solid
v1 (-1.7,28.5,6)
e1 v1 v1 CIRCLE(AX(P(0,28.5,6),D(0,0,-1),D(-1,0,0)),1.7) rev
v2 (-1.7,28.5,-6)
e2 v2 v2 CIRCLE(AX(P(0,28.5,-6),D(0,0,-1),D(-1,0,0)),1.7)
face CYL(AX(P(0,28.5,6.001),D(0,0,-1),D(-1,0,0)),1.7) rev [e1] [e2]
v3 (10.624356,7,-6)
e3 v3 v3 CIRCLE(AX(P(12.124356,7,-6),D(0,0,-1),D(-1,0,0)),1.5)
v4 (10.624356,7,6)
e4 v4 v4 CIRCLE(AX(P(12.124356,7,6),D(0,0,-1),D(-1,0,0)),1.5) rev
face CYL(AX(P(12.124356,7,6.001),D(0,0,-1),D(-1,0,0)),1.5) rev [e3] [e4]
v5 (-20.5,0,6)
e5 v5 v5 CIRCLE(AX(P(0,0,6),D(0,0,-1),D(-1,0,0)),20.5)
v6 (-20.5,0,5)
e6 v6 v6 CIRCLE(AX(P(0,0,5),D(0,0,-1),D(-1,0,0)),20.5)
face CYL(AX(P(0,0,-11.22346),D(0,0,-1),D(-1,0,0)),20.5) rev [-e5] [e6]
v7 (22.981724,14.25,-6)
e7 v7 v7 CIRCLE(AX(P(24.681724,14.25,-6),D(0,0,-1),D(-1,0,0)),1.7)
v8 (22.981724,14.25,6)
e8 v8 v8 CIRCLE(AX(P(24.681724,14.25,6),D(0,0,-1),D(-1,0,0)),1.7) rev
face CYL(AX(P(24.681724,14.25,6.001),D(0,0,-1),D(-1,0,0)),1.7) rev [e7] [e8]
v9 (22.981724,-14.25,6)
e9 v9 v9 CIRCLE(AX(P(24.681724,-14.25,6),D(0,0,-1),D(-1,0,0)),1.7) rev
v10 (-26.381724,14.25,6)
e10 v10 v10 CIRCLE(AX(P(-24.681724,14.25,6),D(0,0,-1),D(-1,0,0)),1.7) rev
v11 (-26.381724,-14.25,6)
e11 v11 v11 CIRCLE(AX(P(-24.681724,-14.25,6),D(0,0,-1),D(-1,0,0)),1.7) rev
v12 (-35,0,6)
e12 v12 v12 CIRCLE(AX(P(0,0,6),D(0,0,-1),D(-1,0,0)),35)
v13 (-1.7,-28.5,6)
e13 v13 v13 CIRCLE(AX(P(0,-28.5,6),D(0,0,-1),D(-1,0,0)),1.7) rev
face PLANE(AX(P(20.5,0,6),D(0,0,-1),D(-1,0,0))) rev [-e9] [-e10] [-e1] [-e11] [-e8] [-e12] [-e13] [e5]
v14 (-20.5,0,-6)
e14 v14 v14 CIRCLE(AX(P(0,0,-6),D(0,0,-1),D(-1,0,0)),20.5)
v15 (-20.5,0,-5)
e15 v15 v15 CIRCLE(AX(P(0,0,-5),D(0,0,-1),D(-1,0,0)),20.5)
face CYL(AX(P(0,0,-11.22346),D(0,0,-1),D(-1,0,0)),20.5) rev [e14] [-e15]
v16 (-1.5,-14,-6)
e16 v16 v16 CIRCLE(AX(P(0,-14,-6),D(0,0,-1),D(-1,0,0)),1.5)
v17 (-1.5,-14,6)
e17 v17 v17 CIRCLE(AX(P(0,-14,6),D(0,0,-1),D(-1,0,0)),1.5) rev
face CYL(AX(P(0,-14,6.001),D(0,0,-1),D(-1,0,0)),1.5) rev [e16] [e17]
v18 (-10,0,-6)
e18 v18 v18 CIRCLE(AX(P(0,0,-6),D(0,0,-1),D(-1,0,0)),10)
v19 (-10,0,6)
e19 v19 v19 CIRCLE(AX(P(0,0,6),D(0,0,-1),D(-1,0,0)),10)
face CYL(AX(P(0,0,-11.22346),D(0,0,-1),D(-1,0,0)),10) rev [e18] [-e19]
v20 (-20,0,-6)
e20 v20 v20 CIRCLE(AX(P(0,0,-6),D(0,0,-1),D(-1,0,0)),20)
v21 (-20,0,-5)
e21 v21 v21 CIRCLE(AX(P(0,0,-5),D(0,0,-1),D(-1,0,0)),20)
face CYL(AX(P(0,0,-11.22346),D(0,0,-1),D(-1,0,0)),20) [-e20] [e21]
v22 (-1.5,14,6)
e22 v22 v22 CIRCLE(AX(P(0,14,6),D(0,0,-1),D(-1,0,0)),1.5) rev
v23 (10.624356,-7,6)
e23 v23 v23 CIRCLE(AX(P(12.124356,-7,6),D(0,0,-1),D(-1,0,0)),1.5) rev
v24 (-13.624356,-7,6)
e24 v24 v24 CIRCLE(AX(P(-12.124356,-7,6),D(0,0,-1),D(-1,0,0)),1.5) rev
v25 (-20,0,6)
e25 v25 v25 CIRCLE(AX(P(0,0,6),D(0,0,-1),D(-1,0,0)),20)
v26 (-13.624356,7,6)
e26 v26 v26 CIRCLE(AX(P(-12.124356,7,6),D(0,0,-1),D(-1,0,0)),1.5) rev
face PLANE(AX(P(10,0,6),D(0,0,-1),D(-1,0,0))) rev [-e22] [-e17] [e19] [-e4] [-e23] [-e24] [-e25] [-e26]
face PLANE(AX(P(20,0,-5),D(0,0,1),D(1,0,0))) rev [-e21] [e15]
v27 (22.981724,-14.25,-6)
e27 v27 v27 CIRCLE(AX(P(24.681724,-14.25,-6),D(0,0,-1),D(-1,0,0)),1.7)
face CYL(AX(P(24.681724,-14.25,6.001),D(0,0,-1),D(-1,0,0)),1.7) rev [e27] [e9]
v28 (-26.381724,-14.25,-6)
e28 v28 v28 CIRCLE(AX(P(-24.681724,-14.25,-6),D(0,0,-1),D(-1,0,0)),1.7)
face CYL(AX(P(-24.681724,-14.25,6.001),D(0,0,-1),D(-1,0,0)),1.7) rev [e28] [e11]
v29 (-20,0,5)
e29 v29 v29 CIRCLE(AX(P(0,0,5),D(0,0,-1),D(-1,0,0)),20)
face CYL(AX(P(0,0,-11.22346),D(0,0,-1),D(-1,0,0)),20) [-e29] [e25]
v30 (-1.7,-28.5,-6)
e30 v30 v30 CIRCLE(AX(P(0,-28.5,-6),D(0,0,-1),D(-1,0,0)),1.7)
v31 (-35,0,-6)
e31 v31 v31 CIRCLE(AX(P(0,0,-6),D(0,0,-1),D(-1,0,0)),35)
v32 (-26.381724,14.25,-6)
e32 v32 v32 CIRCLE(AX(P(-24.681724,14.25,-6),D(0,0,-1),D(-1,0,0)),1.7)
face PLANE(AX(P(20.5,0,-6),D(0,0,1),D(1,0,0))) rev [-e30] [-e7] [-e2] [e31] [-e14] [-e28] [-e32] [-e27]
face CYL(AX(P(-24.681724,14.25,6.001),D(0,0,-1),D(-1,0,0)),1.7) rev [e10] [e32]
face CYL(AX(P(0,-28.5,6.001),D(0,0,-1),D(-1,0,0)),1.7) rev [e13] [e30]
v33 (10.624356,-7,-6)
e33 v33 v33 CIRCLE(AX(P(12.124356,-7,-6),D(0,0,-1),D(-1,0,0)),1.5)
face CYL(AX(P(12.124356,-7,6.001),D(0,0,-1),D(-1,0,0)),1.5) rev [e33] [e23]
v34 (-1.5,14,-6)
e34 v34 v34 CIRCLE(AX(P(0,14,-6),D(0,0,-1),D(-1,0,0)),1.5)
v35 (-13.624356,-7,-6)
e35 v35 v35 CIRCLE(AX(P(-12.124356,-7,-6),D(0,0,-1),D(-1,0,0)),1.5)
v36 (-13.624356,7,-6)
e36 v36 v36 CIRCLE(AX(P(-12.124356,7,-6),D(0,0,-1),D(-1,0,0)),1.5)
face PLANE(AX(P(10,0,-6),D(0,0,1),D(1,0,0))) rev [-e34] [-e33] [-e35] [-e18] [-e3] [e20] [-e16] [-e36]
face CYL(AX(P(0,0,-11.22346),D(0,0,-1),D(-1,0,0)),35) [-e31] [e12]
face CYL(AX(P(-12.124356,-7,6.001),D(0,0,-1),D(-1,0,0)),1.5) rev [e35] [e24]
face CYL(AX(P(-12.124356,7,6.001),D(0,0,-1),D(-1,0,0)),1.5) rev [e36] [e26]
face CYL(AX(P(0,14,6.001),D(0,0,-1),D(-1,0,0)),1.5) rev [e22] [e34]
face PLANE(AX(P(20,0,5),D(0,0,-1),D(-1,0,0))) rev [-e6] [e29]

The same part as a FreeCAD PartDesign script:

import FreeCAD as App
import Part
import Sketcher

V = App.Vector


def add_polygon(sketch, points):
    """Adds a closed chain of lines whose ends are joined by coincident constraints."""
    first, n = sketch.GeometryCount, len(points)
    for a, b in zip(points, points[1:] + points[:1]):
        sketch.addGeometry(Part.LineSegment(App.Vector(*a, 0), App.Vector(*b, 0)), False)
    for i in range(n):
        sketch.addConstraint(Sketcher.Constraint("Coincident", first + i, 2, first + (i + 1) % n, 1))

doc = App.newDocument("Part")
body = doc.addObject("PartDesign::Body", "Body")

# Sketch on XZ plane
sketch1 = doc.addObject("Sketcher::SketchObject", "Sketch")
body.addObject(sketch1)
sketch1.AttachmentSupport = (doc.XZ_Plane, [""])
sketch1.MapMode = "FlatFace"
add_polygon(sketch1, [(20, -6), (10, -6), (10, 6), (20, 6), (20, 5), (20.5, 5), (20.5, 6), (35, 6), (35, -6), (20.5, -6), (20.5, -5), (20, -5)])  # lines 0-11
sketch1.addConstraint([
    Sketcher.Constraint("Horizontal", 0),
    Sketcher.Constraint("Vertical", 1),
    Sketcher.Constraint("Horizontal", 2),
    Sketcher.Constraint("Vertical", 3),
    Sketcher.Constraint("Horizontal", 4),
    Sketcher.Constraint("Vertical", 5),
    Sketcher.Constraint("Horizontal", 6),
    Sketcher.Constraint("Vertical", 7),
    Sketcher.Constraint("Horizontal", 8),
    Sketcher.Constraint("Vertical", 9),
    Sketcher.Constraint("Horizontal", 10),
    Sketcher.Constraint("Vertical", 11),
    Sketcher.Constraint("Symmetric", 5, 2, 8, 2, -1),
    Sketcher.Constraint("Symmetric", 3, 2, 10, 2, -1),
    Sketcher.Constraint("Horizontal", 2, 2, 5, 2),
    Sketcher.Constraint("Horizontal", 0, 2, 7, 2),
    Sketcher.Constraint("DistanceX", 0, 2, 0, 1, 10.0),
    Sketcher.Constraint("DistanceY", 1, 1, 1, 2, 12.0),
    Sketcher.Constraint("DistanceY", 3, 2, 3, 1, 1.0),
    Sketcher.Constraint("DistanceX", 4, 1, 4, 2, 0.5),
    Sketcher.Constraint("DistanceX", 6, 1, 6, 2, 14.5),
    Sketcher.Constraint("DistanceX", -1, 1, 0, 2, 10.0),
])
revolution = doc.addObject("PartDesign::Revolution", "Revolution")
body.addObject(revolution)
revolution.Profile = sketch1
revolution.ReferenceAxis = (sketch1, ["V_Axis"])
revolution.Angle = 360

# Sketch on XY plane
sketch2 = doc.addObject("Sketcher::SketchObject", "Sketch001")
body.addObject(sketch2)
sketch2.AttachmentSupport = (doc.XY_Plane, [""])
sketch2.MapMode = "FlatFace"
sketch2.AttachmentOffset = App.Placement(V(0, 0, -6), App.Rotation())
sketch2.addGeometry(Part.Circle(V(0, 28.5, 0), V(0, 0, 1), 1.7), False)
sketch2.addConstraint([
    Sketcher.Constraint("PointOnObject", 0, 3, -2),
    Sketcher.Constraint("Diameter", 0, 3.4),
    Sketcher.Constraint("DistanceY", -1, 1, 0, 3, 28.5),
])
pocket1 = doc.addObject("PartDesign::Pocket", "Pocket")
body.addObject(pocket1)
pocket1.Profile = sketch2
pocket1.Type = "UpToFirst"
pocket1.Reversed = True

# Sketch on XY plane
sketch3 = doc.addObject("Sketcher::SketchObject", "Sketch002")
body.addObject(sketch3)
sketch3.AttachmentSupport = (doc.XY_Plane, [""])
sketch3.MapMode = "FlatFace"
sketch3.AttachmentOffset = App.Placement(V(0, 0, -6), App.Rotation())
sketch3.addGeometry(Part.Circle(V(-24.7, 14.2, 0), V(0, 0, 1), 1.7), False)
sketch3.addConstraint([
    Sketcher.Constraint("Diameter", 0, 3.4),
    Sketcher.Constraint("DistanceY", -1, 1, 0, 3, 14.25),
    Sketcher.Constraint("DistanceX", 0, 3, -1, 1, 24.681724),
])
pocket2 = doc.addObject("PartDesign::Pocket", "Pocket001")
body.addObject(pocket2)
pocket2.Profile = sketch3
pocket2.Type = "UpToFirst"
pocket2.Reversed = True

# Sketch on XY plane
sketch4 = doc.addObject("Sketcher::SketchObject", "Sketch003")
body.addObject(sketch4)
sketch4.AttachmentSupport = (doc.XY_Plane, [""])
sketch4.MapMode = "FlatFace"
sketch4.AttachmentOffset = App.Placement(V(0, 0, -6), App.Rotation())
sketch4.addGeometry(Part.Circle(V(-24.7, -14.2, 0), V(0, 0, 1), 1.7), False)
sketch4.addConstraint([
    Sketcher.Constraint("Diameter", 0, 3.4),
    Sketcher.Constraint("DistanceY", 0, 3, -1, 1, 14.25),
    Sketcher.Constraint("DistanceX", 0, 3, -1, 1, 24.681724),
])
pocket3 = doc.addObject("PartDesign::Pocket", "Pocket002")
body.addObject(pocket3)
pocket3.Profile = sketch4
pocket3.Type = "UpToFirst"
pocket3.Reversed = True

# Sketch on XY plane
sketch5 = doc.addObject("Sketcher::SketchObject", "Sketch004")
body.addObject(sketch5)
sketch5.AttachmentSupport = (doc.XY_Plane, [""])
sketch5.MapMode = "FlatFace"
sketch5.AttachmentOffset = App.Placement(V(0, 0, -6), App.Rotation())
sketch5.addGeometry(Part.Circle(V(0, -28.5, 0), V(0, 0, 1), 1.7), False)
sketch5.addConstraint([
    Sketcher.Constraint("PointOnObject", 0, 3, -2),
    Sketcher.Constraint("Diameter", 0, 3.4),
    Sketcher.Constraint("DistanceY", 0, 3, -1, 1, 28.5),
])
pocket4 = doc.addObject("PartDesign::Pocket", "Pocket003")
body.addObject(pocket4)
pocket4.Profile = sketch5
pocket4.Type = "UpToFirst"
pocket4.Reversed = True

# Sketch on XY plane
sketch6 = doc.addObject("Sketcher::SketchObject", "Sketch005")
body.addObject(sketch6)
sketch6.AttachmentSupport = (doc.XY_Plane, [""])
sketch6.MapMode = "FlatFace"
sketch6.AttachmentOffset = App.Placement(V(0, 0, -6), App.Rotation())
sketch6.addGeometry(Part.Circle(V(24.7, -14.2, 0), V(0, 0, 1), 1.7), False)
sketch6.addConstraint([
    Sketcher.Constraint("Diameter", 0, 3.4),
    Sketcher.Constraint("DistanceY", 0, 3, -1, 1, 14.25),
    Sketcher.Constraint("DistanceX", -1, 1, 0, 3, 24.681724),
])
pocket5 = doc.addObject("PartDesign::Pocket", "Pocket004")
body.addObject(pocket5)
pocket5.Profile = sketch6
pocket5.Type = "UpToFirst"
pocket5.Reversed = True

# Sketch on XY plane
sketch7 = doc.addObject("Sketcher::SketchObject", "Sketch006")
body.addObject(sketch7)
sketch7.AttachmentSupport = (doc.XY_Plane, [""])
sketch7.MapMode = "FlatFace"
sketch7.AttachmentOffset = App.Placement(V(0, 0, -6), App.Rotation())
sketch7.addGeometry(Part.Circle(V(24.7, 14.2, 0), V(0, 0, 1), 1.7), False)
sketch7.addConstraint([
    Sketcher.Constraint("Diameter", 0, 3.4),
    Sketcher.Constraint("DistanceY", -1, 1, 0, 3, 14.25),
    Sketcher.Constraint("DistanceX", -1, 1, 0, 3, 24.681724),
])
pocket6 = doc.addObject("PartDesign::Pocket", "Pocket005")
body.addObject(pocket6)
pocket6.Profile = sketch7
pocket6.Type = "UpToFirst"
pocket6.Reversed = True

# Sketch on XY plane
sketch8 = doc.addObject("Sketcher::SketchObject", "Sketch007")
body.addObject(sketch8)
sketch8.AttachmentSupport = (doc.XY_Plane, [""])
sketch8.MapMode = "FlatFace"
sketch8.AttachmentOffset = App.Placement(V(0, 0, -6), App.Rotation())
sketch8.addGeometry(Part.Circle(V(0, 14, 0), V(0, 0, 1), 1.5), False)
sketch8.addConstraint([
    Sketcher.Constraint("PointOnObject", 0, 3, -2),
    Sketcher.Constraint("Diameter", 0, 3.0),
    Sketcher.Constraint("DistanceY", -1, 1, 0, 3, 14.0),
])
pocket7 = doc.addObject("PartDesign::Pocket", "Pocket006")
body.addObject(pocket7)
pocket7.Profile = sketch8
pocket7.Type = "UpToFirst"
pocket7.Reversed = True

# Sketch on XY plane
sketch9 = doc.addObject("Sketcher::SketchObject", "Sketch008")
body.addObject(sketch9)
sketch9.AttachmentSupport = (doc.XY_Plane, [""])
sketch9.MapMode = "FlatFace"
sketch9.AttachmentOffset = App.Placement(V(0, 0, -6), App.Rotation())
sketch9.addGeometry(Part.Circle(V(-12.1, 7, 0), V(0, 0, 1), 1.5), False)
sketch9.addConstraint([
    Sketcher.Constraint("Diameter", 0, 3.0),
    Sketcher.Constraint("DistanceY", -1, 1, 0, 3, 7.0),
    Sketcher.Constraint("DistanceX", 0, 3, -1, 1, 12.124356),
])
pocket8 = doc.addObject("PartDesign::Pocket", "Pocket007")
body.addObject(pocket8)
pocket8.Profile = sketch9
pocket8.Type = "UpToFirst"
pocket8.Reversed = True

# Sketch on XY plane
sketch10 = doc.addObject("Sketcher::SketchObject", "Sketch009")
body.addObject(sketch10)
sketch10.AttachmentSupport = (doc.XY_Plane, [""])
sketch10.MapMode = "FlatFace"
sketch10.AttachmentOffset = App.Placement(V(0, 0, -6), App.Rotation())
sketch10.addGeometry(Part.Circle(V(-12.1, -7, 0), V(0, 0, 1), 1.5), False)
sketch10.addConstraint([
    Sketcher.Constraint("Diameter", 0, 3.0),
    Sketcher.Constraint("DistanceY", 0, 3, -1, 1, 7.0),
    Sketcher.Constraint("DistanceX", 0, 3, -1, 1, 12.124356),
])
pocket9 = doc.addObject("PartDesign::Pocket", "Pocket008")
body.addObject(pocket9)
pocket9.Profile = sketch10
pocket9.Type = "UpToFirst"
pocket9.Reversed = True

# Sketch on XY plane
sketch11 = doc.addObject("Sketcher::SketchObject", "Sketch010")
body.addObject(sketch11)
sketch11.AttachmentSupport = (doc.XY_Plane, [""])
sketch11.MapMode = "FlatFace"
sketch11.AttachmentOffset = App.Placement(V(0, 0, -6), App.Rotation())
sketch11.addGeometry(Part.Circle(V(0, -14, 0), V(0, 0, 1), 1.5), False)
sketch11.addConstraint([
    Sketcher.Constraint("PointOnObject", 0, 3, -2),
    Sketcher.Constraint("Diameter", 0, 3.0),
    Sketcher.Constraint("DistanceY", 0, 3, -1, 1, 14.0),
])
pocket10 = doc.addObject("PartDesign::Pocket", "Pocket009")
body.addObject(pocket10)
pocket10.Profile = sketch11
pocket10.Type = "UpToFirst"
pocket10.Reversed = True

# Sketch on XY plane
sketch12 = doc.addObject("Sketcher::SketchObject", "Sketch011")
body.addObject(sketch12)
sketch12.AttachmentSupport = (doc.XY_Plane, [""])
sketch12.MapMode = "FlatFace"
sketch12.AttachmentOffset = App.Placement(V(0, 0, -6), App.Rotation())
sketch12.addGeometry(Part.Circle(V(12.1, -7, 0), V(0, 0, 1), 1.5), False)
sketch12.addConstraint([
    Sketcher.Constraint("Diameter", 0, 3.0),
    Sketcher.Constraint("DistanceY", 0, 3, -1, 1, 7.0),
    Sketcher.Constraint("DistanceX", -1, 1, 0, 3, 12.124356),
])
pocket11 = doc.addObject("PartDesign::Pocket", "Pocket010")
body.addObject(pocket11)
pocket11.Profile = sketch12
pocket11.Type = "UpToFirst"
pocket11.Reversed = True

# Sketch on XY plane
sketch13 = doc.addObject("Sketcher::SketchObject", "Sketch012")
body.addObject(sketch13)
sketch13.AttachmentSupport = (doc.XY_Plane, [""])
sketch13.MapMode = "FlatFace"
sketch13.AttachmentOffset = App.Placement(V(0, 0, -6), App.Rotation())
sketch13.addGeometry(Part.Circle(V(12.1, 7, 0), V(0, 0, 1), 1.5), False)
sketch13.addConstraint([
    Sketcher.Constraint("Diameter", 0, 3.0),
    Sketcher.Constraint("DistanceY", -1, 1, 0, 3, 7.0),
    Sketcher.Constraint("DistanceX", -1, 1, 0, 3, 12.124356),
])
pocket12 = doc.addObject("PartDesign::Pocket", "Pocket011")
body.addObject(pocket12)
pocket12.Profile = sketch13
pocket12.Type = "UpToFirst"
pocket12.Reversed = True

doc.recompute()
